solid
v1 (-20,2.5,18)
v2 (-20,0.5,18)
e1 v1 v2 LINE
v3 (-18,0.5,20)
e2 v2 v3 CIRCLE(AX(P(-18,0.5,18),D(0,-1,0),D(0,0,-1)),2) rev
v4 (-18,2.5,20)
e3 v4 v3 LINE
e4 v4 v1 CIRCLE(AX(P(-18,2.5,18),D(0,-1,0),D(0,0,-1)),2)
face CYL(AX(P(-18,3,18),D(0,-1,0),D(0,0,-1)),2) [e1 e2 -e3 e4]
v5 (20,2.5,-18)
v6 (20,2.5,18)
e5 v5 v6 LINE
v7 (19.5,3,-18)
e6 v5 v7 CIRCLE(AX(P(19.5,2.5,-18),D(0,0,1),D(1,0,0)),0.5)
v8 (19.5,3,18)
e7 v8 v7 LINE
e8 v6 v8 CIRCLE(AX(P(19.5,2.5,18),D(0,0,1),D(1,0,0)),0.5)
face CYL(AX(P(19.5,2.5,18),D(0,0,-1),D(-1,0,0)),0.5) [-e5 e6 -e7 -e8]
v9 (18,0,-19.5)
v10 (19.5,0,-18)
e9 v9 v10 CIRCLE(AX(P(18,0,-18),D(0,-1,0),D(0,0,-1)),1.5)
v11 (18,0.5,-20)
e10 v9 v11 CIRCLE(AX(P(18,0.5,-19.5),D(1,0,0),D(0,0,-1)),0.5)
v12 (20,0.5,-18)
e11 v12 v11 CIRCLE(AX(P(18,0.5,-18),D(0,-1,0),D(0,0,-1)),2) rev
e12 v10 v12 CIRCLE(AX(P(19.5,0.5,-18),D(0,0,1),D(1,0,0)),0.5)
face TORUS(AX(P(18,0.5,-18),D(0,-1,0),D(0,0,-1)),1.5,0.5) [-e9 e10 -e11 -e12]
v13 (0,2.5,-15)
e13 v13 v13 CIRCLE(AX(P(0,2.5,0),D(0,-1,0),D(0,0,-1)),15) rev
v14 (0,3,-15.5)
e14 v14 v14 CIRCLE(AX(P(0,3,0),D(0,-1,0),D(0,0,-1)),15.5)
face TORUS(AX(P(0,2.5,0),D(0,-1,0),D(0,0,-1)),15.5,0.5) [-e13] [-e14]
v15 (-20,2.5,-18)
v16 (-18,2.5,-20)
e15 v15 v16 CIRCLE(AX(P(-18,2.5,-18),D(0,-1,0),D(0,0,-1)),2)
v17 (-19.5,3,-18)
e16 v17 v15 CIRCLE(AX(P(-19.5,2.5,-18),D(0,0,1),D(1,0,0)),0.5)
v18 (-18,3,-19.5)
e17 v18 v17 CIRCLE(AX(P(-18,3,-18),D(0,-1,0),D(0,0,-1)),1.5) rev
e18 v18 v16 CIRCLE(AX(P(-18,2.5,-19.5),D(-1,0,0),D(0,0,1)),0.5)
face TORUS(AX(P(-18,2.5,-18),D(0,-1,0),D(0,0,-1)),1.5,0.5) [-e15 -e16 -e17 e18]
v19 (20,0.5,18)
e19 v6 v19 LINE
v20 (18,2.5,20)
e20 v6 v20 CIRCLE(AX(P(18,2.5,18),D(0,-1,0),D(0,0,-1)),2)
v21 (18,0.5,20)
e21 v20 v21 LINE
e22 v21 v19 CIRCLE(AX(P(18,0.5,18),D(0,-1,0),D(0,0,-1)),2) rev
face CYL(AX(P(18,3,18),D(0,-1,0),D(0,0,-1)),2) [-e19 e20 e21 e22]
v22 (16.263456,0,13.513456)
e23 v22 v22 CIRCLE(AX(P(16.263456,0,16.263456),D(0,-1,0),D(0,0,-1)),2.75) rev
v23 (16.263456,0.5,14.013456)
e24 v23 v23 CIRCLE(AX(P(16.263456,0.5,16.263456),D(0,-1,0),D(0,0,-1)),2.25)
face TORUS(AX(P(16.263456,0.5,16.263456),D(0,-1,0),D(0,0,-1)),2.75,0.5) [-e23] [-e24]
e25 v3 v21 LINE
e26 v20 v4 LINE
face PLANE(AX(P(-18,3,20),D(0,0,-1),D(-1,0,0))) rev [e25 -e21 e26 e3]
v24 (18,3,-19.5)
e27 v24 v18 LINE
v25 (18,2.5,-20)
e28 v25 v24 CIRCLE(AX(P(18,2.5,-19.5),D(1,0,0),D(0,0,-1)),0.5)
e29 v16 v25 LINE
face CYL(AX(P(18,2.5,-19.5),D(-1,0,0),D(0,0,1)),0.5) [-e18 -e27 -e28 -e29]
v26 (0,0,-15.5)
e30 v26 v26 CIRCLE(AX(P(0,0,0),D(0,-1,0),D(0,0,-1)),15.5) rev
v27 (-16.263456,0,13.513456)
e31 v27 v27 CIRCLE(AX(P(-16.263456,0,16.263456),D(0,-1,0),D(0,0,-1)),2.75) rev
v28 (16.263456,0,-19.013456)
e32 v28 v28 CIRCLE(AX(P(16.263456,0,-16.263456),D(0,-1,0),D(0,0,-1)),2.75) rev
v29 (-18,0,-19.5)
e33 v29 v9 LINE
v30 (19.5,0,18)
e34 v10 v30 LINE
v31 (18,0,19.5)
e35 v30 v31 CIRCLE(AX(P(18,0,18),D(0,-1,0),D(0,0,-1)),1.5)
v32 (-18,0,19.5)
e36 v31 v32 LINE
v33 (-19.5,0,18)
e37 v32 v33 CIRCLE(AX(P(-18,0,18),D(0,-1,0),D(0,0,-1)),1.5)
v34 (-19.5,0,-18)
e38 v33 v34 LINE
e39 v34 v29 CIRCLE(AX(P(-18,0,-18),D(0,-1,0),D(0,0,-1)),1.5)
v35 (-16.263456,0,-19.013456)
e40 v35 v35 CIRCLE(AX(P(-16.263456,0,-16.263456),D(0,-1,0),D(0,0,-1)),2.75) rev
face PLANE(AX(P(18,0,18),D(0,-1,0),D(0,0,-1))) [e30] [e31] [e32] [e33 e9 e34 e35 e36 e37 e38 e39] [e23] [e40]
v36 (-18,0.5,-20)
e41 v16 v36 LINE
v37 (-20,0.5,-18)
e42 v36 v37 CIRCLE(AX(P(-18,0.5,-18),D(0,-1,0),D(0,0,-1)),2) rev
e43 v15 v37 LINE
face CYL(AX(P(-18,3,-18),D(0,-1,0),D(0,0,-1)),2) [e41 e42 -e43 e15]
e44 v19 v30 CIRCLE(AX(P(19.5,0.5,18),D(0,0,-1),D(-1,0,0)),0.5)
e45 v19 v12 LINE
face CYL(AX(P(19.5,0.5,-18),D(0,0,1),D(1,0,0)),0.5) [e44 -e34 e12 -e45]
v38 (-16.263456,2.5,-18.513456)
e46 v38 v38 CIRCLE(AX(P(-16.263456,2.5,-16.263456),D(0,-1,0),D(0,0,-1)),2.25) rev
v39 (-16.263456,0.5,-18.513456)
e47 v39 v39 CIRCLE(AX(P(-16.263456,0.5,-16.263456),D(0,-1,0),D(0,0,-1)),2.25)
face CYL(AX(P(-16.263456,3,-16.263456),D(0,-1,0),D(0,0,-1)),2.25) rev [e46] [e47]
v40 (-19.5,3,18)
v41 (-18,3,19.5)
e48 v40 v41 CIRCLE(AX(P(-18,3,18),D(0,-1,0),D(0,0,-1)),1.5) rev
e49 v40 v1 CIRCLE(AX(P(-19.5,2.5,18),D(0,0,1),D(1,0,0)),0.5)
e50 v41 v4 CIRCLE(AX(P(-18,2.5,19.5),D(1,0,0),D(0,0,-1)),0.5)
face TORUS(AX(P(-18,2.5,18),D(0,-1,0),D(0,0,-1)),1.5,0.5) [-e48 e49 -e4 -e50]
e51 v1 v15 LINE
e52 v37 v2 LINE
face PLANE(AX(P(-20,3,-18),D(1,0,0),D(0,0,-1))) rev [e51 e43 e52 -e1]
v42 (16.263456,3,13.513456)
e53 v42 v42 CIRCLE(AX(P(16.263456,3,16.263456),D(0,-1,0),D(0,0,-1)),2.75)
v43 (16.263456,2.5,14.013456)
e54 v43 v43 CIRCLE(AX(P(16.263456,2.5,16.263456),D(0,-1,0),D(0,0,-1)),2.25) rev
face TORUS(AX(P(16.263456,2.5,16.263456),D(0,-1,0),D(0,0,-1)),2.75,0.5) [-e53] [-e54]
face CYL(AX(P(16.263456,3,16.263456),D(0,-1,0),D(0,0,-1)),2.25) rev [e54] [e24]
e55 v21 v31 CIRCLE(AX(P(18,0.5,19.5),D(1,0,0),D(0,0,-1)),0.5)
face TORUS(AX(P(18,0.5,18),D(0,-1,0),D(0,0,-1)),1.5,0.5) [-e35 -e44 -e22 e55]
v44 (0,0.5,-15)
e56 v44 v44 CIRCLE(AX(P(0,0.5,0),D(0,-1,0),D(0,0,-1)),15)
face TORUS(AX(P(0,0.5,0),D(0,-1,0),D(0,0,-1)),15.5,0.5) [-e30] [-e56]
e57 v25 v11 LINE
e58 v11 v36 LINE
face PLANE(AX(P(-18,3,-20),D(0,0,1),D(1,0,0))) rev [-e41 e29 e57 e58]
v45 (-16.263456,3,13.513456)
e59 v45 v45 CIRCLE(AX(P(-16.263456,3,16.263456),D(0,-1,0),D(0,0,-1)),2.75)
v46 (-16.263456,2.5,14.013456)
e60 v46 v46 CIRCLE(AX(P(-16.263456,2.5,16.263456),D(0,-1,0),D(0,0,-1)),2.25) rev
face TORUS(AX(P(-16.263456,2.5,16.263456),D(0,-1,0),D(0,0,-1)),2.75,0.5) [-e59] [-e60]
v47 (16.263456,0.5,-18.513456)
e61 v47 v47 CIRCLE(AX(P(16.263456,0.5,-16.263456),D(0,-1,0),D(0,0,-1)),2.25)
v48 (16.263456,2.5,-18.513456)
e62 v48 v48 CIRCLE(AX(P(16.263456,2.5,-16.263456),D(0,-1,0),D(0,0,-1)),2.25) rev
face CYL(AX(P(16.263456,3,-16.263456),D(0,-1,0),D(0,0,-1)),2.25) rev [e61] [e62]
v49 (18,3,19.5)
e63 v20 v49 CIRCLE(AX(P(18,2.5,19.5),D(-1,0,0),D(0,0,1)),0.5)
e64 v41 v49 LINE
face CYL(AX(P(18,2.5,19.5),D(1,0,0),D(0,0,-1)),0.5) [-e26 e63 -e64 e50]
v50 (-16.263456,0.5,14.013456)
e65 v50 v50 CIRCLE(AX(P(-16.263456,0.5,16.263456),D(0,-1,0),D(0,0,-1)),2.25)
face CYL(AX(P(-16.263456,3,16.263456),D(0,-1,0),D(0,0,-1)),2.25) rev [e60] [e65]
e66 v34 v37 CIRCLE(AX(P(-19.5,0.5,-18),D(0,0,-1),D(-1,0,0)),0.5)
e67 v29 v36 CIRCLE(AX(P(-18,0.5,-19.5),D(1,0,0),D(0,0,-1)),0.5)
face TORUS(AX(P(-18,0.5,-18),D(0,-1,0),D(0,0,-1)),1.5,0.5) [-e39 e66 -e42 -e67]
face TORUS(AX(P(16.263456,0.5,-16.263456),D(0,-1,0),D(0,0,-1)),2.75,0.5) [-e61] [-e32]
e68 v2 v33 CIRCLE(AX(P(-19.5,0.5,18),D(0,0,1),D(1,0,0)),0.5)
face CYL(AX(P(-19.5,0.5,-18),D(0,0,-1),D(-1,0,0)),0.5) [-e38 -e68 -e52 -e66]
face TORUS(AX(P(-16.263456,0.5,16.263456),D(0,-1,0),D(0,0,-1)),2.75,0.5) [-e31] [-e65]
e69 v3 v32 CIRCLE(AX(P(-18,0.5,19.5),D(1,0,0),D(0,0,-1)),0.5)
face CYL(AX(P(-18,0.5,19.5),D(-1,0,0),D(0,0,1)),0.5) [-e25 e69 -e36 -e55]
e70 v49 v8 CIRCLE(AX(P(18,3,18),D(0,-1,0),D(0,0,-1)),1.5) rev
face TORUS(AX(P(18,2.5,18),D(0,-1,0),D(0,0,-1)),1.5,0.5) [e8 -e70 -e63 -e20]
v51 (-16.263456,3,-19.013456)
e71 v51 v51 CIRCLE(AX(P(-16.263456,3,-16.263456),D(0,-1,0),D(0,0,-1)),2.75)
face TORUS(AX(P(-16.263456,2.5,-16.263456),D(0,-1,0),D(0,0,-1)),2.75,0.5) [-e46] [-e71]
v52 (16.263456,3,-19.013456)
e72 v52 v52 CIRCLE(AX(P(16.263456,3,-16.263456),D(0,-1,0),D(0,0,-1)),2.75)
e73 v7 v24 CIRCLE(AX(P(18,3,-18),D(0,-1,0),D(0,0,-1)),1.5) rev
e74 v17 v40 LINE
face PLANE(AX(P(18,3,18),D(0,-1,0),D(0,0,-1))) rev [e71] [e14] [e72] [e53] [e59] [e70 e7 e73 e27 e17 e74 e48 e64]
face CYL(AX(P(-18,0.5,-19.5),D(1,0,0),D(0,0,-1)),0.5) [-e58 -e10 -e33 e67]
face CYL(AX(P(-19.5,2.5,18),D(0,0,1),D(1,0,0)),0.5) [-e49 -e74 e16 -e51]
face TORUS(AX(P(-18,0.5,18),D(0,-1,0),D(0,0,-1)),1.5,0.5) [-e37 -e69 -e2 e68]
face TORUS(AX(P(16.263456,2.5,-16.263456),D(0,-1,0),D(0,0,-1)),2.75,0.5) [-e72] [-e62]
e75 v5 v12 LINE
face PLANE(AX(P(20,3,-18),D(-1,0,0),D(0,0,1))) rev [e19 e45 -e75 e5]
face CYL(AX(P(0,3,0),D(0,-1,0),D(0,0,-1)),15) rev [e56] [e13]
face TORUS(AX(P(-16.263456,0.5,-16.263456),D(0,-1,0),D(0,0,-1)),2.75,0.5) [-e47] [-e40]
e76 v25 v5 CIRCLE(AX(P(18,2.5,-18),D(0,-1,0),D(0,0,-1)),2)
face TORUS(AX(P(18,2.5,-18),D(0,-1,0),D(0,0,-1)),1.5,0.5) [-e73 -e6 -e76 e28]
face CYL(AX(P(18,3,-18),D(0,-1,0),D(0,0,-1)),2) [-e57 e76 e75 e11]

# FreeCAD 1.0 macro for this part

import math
import FreeCAD as App
import Part
import Sketcher

V = App.Vector
Q = App.Units.Quantity


def edges_at(feature, points):
    """Names of the edges that pass closest to the given points."""
    edges = feature.Shape.Edges
    near = lambda p: min(range(len(edges)), key=lambda i: edges[i].distToShape(Part.Vertex(*p))[0])
    return sorted({f"Edge{near(p) + 1}" for p in points})

doc = App.newDocument("Part")
params = doc.addObject("Spreadsheet::Sheet", "Params")
for row, (alias, value) in enumerate([
    ("sketch1_diameter", "30 mm"),
    ("sketch1_radius", "2 mm"),
    ("sketch1_diameter2", "4.5 mm"),
    ("sketch1_width", "36 mm"),
    ("pad1_length", "3 mm"),
    ("fillet_radius", "0.5 mm"),
], start=1):
    params.set(f"A{row}", alias)
    params.set(f"B{row}", "=" + value)
    params.setAlias(f"B{row}", alias)

body = doc.addObject("PartDesign::Body", "Body")

sketch1 = body.newObject("Sketcher::SketchObject", "Sketch")
sketch1.AttachmentSupport = (doc.getObject("XZ_Plane"), [""])
sketch1.MapMode = "FlatFace"
sketch1.addGeometry([
    Part.LineSegment(V(18, -20, 0), V(-18, -20, 0)),
    Part.ArcOfCircle(Part.Circle(V(-18, -18, 0), V(0, 0, 1), 2), math.radians(-180), math.radians(-90)),
    Part.LineSegment(V(-20, -18, 0), V(-20, 18, 0)),
    Part.ArcOfCircle(Part.Circle(V(-18, 18, 0), V(0, 0, 1), 2), math.radians(90), math.radians(180)),
    Part.LineSegment(V(-18, 20, 0), V(18, 20, 0)),
    Part.ArcOfCircle(Part.Circle(V(18, 18, 0), V(0, 0, 1), 2), math.radians(0), math.radians(90)),
    Part.LineSegment(V(20, 18, 0), V(20, -18, 0)),
    Part.ArcOfCircle(Part.Circle(V(18, -18, 0), V(0, 0, 1), 2), math.radians(-90), math.radians(0)),
    Part.Circle(V(16.3, 16.3, 0), V(0, 0, 1), 2.2),
    Part.Circle(V(-16.3, 16.3, 0), V(0, 0, 1), 2.2),
    Part.Circle(V(16.3, -16.3, 0), V(0, 0, 1), 2.2),
    Part.Circle(V(0, 0, 0), V(0, 0, 1), 15),
    Part.Circle(V(-16.3, -16.3, 0), V(0, 0, 1), 2.2),
], False)
sketch1.addConstraint([
    Sketcher.Constraint("Tangent", 0, 2, 1, 2),
    Sketcher.Constraint("Tangent", 1, 1, 2, 1),
    Sketcher.Constraint("Tangent", 2, 2, 3, 2),
    Sketcher.Constraint("Tangent", 3, 1, 4, 1),
    Sketcher.Constraint("Tangent", 4, 2, 5, 2),
    Sketcher.Constraint("Tangent", 5, 1, 6, 1),
    Sketcher.Constraint("Tangent", 6, 2, 7, 2),
    Sketcher.Constraint("Tangent", 7, 1, 0, 1),
    Sketcher.Constraint("Horizontal", 0),
    Sketcher.Constraint("Vertical", 2),
    Sketcher.Constraint("Horizontal", 4),
    Sketcher.Constraint("Vertical", 6),
    Sketcher.Constraint("Coincident", 11, 3, -1, 1),
    Sketcher.Constraint("Equal", 1, 3),
    Sketcher.Constraint("Equal", 3, 5),
    Sketcher.Constraint("Equal", 5, 7),
    Sketcher.Constraint("Equal", 8, 9),
    Sketcher.Constraint("Equal", 9, 10),
    Sketcher.Constraint("Equal", 10, 12),
    Sketcher.Constraint("Symmetric", 1, 3, 5, 3, -1, 1),
    Sketcher.Constraint("Symmetric", 9, 3, 10, 3, -1, 1),
    Sketcher.Constraint("Symmetric", 8, 3, 12, 3, -1, 1),
    Sketcher.Constraint("Symmetric", 8, 3, 9, 3, -2),
    Sketcher.Constraint("Equal", 4, 2),
    Sketcher.Constraint("Diameter", 11, Q("30 mm")),
    Sketcher.Constraint("Radius", 1, Q("2 mm")),
    Sketcher.Constraint("Diameter", 8, Q("4.5 mm")),
    Sketcher.Constraint("DistanceX", 0, 2, 0, 1, Q("36 mm")),
    Sketcher.Constraint("DistanceX", 9, 3, 8, 3, Q("32.526912 mm")),
    Sketcher.Constraint("DistanceY", 10, 3, 8, 3, Q("32.526912 mm")),
])
sketch1.setExpression("Constraints[24]", "Params.sketch1_diameter")
sketch1.setExpression("Constraints[25]", "Params.sketch1_radius")
sketch1.setExpression("Constraints[26]", "Params.sketch1_diameter2")
sketch1.setExpression("Constraints[27]", "Params.sketch1_width")
pad1 = body.newObject("PartDesign::Pad", "Pad")
pad1.Profile = sketch1
pad1.setExpression("Length", "Params.pad1_length")
pad1.Reversed = True
doc.recompute()

fillet = body.newObject("PartDesign::Fillet", "Fillet")
fillet.Base = (pad1, edges_at(pad1, [
    (0, 0, -20),
    (19.414, 0, -19.414),
    (20, 0, 0),
    (19.414, 0, 19.414),
    (19.414, 3, -19.414),
    (0, 3, -20),
    (-19.414, 3, -19.414),
    (-18.513, 0, -16.263),
    (-18.513, 3, -16.263),
    (-20, 3, 0),
    (14.013, 0, -16.263),
    (14.013, 3, -16.263),
    (-19.414, 3, 19.414),
    (14.013, 0, 16.263),
    (14.013, 3, 16.263),
    (0, 3, 20),
    (-18.513, 0, 16.263),
    (-18.513, 3, 16.263),
    (-15, 0, 0),
    (-15, 3, 0),
    (19.414, 3, 19.414),
    (0, 0, 20),
    (20, 3, 0),
    (-19.414, 0, 19.414),
    (-20, 0, 0),
    (-19.414, 0, -19.414),
]))
fillet.setExpression("Radius", "Params.fillet_radius")

doc.recompute()
